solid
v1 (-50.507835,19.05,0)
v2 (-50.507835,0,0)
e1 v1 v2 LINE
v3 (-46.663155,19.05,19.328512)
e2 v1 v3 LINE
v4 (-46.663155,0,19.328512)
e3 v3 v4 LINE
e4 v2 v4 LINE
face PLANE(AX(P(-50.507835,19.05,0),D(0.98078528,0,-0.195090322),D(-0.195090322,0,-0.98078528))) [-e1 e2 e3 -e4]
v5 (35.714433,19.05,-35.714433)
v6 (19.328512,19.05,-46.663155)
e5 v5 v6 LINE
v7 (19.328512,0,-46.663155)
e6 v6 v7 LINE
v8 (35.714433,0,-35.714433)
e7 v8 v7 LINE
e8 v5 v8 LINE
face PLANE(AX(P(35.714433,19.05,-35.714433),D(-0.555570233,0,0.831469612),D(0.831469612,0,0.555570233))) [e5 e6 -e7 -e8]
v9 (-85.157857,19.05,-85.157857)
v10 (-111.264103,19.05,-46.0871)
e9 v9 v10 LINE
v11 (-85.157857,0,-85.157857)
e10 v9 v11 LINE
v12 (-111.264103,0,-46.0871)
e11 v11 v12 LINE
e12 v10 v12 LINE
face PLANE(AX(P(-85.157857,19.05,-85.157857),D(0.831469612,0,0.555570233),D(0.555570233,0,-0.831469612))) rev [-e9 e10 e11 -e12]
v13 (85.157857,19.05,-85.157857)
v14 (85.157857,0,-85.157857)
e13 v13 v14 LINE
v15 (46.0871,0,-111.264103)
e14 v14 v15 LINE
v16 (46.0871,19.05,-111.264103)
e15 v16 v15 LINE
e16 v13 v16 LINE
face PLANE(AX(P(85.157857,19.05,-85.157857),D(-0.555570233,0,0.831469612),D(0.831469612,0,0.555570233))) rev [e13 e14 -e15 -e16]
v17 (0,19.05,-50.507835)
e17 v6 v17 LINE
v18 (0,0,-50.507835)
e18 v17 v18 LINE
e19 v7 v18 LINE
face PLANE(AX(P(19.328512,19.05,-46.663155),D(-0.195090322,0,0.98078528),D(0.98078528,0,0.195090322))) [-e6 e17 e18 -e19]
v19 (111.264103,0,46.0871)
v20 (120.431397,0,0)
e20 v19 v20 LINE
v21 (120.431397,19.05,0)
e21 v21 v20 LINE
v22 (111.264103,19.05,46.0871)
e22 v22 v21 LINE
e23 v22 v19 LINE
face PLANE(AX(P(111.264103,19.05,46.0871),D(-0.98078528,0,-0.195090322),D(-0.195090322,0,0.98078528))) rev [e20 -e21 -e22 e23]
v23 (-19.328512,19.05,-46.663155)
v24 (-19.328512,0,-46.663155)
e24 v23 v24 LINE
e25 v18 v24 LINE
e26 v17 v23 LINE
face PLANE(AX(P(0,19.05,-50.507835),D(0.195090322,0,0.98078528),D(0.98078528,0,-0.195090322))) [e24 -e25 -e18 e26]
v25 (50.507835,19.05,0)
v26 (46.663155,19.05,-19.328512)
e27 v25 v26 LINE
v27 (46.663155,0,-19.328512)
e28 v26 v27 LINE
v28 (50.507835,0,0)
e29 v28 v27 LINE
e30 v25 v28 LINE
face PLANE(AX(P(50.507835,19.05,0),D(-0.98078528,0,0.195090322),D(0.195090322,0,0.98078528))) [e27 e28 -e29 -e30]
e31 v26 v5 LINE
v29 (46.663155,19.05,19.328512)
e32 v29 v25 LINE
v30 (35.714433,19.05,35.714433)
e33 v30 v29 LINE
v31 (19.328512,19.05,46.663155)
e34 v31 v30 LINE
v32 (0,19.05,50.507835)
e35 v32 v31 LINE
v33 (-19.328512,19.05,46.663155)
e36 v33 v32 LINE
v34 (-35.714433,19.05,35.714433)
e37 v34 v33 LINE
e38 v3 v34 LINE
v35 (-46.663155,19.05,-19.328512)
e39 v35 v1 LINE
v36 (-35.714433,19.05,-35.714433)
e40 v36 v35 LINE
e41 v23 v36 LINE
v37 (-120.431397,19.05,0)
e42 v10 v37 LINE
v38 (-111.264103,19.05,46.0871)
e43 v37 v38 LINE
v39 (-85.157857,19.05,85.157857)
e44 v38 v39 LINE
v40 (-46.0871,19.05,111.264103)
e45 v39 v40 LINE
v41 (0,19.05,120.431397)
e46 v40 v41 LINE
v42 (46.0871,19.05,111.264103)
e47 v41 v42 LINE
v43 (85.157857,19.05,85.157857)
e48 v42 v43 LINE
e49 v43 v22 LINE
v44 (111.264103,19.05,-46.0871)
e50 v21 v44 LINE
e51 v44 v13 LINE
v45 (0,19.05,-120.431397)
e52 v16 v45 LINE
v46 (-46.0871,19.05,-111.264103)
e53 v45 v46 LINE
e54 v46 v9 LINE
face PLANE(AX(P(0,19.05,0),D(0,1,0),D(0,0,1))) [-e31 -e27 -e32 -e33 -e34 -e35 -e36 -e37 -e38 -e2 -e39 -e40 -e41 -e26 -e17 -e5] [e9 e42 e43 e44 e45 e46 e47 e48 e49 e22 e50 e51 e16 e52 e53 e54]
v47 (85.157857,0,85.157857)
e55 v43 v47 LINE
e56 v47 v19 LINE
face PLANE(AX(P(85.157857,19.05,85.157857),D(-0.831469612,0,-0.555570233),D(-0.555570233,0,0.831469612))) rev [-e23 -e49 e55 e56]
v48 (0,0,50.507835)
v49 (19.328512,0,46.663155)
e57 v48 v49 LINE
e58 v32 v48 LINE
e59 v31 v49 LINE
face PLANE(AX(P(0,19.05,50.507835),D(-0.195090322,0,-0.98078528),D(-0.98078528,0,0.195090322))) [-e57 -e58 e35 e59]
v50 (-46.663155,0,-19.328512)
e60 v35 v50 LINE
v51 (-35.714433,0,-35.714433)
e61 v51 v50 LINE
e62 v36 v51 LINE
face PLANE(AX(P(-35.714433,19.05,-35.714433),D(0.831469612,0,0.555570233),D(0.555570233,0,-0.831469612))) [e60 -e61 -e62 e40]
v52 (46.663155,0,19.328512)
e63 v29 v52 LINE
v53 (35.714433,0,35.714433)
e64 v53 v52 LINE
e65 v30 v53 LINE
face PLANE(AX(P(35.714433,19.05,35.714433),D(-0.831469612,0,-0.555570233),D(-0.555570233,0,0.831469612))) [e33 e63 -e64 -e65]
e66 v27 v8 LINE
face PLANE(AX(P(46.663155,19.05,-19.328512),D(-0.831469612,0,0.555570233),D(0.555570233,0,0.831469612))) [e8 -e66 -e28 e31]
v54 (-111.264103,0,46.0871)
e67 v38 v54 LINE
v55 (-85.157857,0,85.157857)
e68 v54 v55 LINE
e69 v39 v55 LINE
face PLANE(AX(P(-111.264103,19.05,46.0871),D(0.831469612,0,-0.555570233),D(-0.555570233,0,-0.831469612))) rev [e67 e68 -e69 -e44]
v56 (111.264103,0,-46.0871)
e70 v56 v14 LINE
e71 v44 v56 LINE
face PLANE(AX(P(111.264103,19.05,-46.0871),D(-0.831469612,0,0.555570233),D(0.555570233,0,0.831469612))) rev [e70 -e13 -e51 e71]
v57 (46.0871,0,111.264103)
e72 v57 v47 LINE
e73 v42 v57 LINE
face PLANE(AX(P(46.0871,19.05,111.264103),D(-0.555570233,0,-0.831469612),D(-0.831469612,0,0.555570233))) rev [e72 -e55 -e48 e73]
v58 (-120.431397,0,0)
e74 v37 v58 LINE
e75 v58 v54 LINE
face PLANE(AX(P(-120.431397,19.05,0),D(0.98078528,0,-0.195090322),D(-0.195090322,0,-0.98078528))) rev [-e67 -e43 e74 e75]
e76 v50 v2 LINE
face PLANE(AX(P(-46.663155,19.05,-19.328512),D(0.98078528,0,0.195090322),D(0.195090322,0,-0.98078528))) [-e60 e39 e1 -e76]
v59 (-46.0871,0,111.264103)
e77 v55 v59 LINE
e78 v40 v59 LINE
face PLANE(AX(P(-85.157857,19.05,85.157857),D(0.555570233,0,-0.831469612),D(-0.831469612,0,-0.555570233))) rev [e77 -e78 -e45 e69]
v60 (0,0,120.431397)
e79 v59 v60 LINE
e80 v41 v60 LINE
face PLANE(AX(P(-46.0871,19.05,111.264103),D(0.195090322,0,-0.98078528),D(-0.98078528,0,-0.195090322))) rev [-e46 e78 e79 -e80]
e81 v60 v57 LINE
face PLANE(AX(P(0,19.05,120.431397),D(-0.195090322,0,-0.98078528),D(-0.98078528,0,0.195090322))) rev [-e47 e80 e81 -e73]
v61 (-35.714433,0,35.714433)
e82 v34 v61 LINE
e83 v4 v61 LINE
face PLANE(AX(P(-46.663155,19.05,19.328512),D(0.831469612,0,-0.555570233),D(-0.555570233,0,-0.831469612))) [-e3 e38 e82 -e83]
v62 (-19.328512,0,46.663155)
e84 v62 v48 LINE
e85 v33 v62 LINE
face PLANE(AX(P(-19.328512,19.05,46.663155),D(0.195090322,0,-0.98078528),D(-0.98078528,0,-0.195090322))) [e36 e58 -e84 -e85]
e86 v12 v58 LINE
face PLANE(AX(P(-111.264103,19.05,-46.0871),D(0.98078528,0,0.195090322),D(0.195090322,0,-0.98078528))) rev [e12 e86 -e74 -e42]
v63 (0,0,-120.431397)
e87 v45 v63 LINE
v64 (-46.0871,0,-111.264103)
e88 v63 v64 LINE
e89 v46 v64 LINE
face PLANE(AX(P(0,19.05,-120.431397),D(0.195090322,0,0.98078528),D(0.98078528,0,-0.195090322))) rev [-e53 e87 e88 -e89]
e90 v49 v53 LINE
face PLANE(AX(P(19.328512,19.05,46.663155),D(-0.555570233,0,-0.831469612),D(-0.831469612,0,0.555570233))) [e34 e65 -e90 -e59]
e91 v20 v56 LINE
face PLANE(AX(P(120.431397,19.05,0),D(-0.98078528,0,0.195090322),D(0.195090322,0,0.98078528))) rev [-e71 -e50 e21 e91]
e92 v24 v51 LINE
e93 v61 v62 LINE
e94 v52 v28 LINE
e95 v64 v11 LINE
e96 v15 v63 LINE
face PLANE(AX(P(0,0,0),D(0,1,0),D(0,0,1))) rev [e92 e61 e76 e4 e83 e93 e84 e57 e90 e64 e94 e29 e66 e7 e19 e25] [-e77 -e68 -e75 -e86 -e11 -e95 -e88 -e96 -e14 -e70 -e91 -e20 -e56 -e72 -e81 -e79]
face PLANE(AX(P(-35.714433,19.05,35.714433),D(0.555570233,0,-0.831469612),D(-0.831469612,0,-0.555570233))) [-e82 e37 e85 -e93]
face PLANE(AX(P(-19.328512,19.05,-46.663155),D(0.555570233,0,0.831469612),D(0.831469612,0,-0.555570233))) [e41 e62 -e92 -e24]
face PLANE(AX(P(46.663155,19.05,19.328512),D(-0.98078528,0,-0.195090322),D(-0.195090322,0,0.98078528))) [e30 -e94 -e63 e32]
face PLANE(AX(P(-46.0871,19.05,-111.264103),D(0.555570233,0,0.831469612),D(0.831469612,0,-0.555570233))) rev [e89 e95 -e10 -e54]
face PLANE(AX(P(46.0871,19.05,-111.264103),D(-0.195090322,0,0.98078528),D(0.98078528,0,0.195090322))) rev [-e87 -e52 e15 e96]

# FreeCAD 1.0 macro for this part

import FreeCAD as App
import Part
import Sketcher
Q = App.Units.Quantity


def add_polygon(sketch, points):
    """Adds a closed chain of lines whose ends are joined by coincident constraints."""
    first, n = sketch.GeometryCount, len(points)
    for a, b in zip(points, points[1:] + points[:1]):
        sketch.addGeometry(Part.LineSegment(App.Vector(*a, 0), App.Vector(*b, 0)), False)
    for i in range(n):
        sketch.addConstraint(Sketcher.Constraint("Coincident", first + i, 2, first + (i + 1) % n, 1))

doc = App.newDocument("Part")
params = doc.addObject("Spreadsheet::Sheet", "Params")
for row, (alias, value) in enumerate([
    ("sketch1_length", "1.85 in"),
    ("pad1_length", "0.75 in"),
], start=1):
    params.set(f"A{row}", alias)
    params.set(f"B{row}", "=" + value)
    params.setAlias(f"B{row}", alias)

body = doc.addObject("PartDesign::Body", "Body")

# Sketch on XZ plane
sketch1 = doc.addObject("Sketcher::SketchObject", "Sketch")
body.addObject(sketch1)
sketch1.AttachmentSupport = (doc.XZ_Plane, [""])
sketch1.MapMode = "FlatFace"
add_polygon(sketch1, [(120, 0), (111, -46), (85, -85), (46, -111), (0, -120), (-46, -111), (-85, -85), (-111, -46), (-120, 0), (-111, 46), (-85, 85), (-46, 111), (0, 120), (46, 111), (85, 85), (111, 46)])  # lines 0-15
add_polygon(sketch1, [(47, -19), (51, 0), (47, 19), (36, 36), (19, 47), (0, 51), (-19, 47), (-36, 36), (-47, 19), (-51, 0), (-47, -19), (-36, -36), (-19, -47), (0, -51), (19, -47), (36, -36)])  # lines 16-31
sketch1.addConstraint([
    Sketcher.Constraint("Symmetric", 0, 2, 8, 2, -1, 1),
    Sketcher.Constraint("Symmetric", 1, 2, 9, 2, -1, 1),
    Sketcher.Constraint("Symmetric", 2, 2, 10, 2, -1, 1),
    Sketcher.Constraint("Symmetric", 3, 2, 11, 2, -1, 1),
    Sketcher.Constraint("Symmetric", 4, 2, 12, 2, -1, 1),
    Sketcher.Constraint("Symmetric", 5, 2, 13, 2, -1, 1),
    Sketcher.Constraint("Symmetric", 6, 2, 14, 2, -1, 1),
    Sketcher.Constraint("Symmetric", 7, 2, 15, 2, -1, 1),
    Sketcher.Constraint("Symmetric", 16, 2, 24, 2, -1, 1),
    Sketcher.Constraint("Symmetric", 17, 2, 25, 2, -1, 1),
    Sketcher.Constraint("Symmetric", 18, 2, 26, 2, -1, 1),
    Sketcher.Constraint("Symmetric", 19, 2, 27, 2, -1, 1),
    Sketcher.Constraint("Symmetric", 20, 2, 28, 2, -1, 1),
    Sketcher.Constraint("Symmetric", 21, 2, 29, 2, -1, 1),
    Sketcher.Constraint("Symmetric", 22, 2, 30, 2, -1, 1),
    Sketcher.Constraint("Symmetric", 23, 2, 31, 2, -1, 1),
    Sketcher.Constraint("Symmetric", 2, 2, 4, 2, -2),
    Sketcher.Constraint("Symmetric", 1, 2, 5, 2, -2),
    Sketcher.Constraint("Symmetric", 0, 2, 6, 2, -2),
    Sketcher.Constraint("Symmetric", 19, 2, 21, 2, -2),
    Sketcher.Constraint("Symmetric", 18, 2, 22, 2, -2),
    Sketcher.Constraint("Symmetric", 17, 2, 23, 2, -2),
    Sketcher.Constraint("PointOnObject", 3, 2, -2),
    Sketcher.Constraint("PointOnObject", 7, 2, -1),
    Sketcher.Constraint("PointOnObject", 16, 2, -1),
    Sketcher.Constraint("PointOnObject", 20, 2, -2),
    Sketcher.Constraint("Perpendicular", 0, 4),
    Sketcher.Constraint("Perpendicular", 1, 5),
    Sketcher.Constraint("Perpendicular", 12, 16),
    Sketcher.Constraint("Parallel", 14, 18),
    Sketcher.Constraint("Parallel", 13, 19),
    Sketcher.Constraint("Perpendicular", 16, 20),
    Sketcher.Constraint("Equal", 0, 1),
    Sketcher.Constraint("Equal", 1, 2),
    Sketcher.Constraint("Equal", 2, 3),
    Sketcher.Constraint("Equal", 17, 18),
    Sketcher.Constraint("Equal", 18, 19),
    Sketcher.Constraint("Equal", 19, 20),
    Sketcher.Constraint("Distance", 0, Q("1.85 in")),
    Sketcher.Constraint("Angle", 0, Q("-101.25 deg")),
    Sketcher.Constraint("Angle", 1, Q("-123.75 deg")),
    Sketcher.Constraint("Distance", 16, 19.70718),
])
sketch1.setExpression("Constraints[70]", "Params.sketch1_length")
pad1 = doc.addObject("PartDesign::Pad", "Pad")
body.addObject(pad1)
pad1.Profile = sketch1
pad1.setExpression("Length", "Params.pad1_length")
pad1.Reversed = True

doc.recompute()
